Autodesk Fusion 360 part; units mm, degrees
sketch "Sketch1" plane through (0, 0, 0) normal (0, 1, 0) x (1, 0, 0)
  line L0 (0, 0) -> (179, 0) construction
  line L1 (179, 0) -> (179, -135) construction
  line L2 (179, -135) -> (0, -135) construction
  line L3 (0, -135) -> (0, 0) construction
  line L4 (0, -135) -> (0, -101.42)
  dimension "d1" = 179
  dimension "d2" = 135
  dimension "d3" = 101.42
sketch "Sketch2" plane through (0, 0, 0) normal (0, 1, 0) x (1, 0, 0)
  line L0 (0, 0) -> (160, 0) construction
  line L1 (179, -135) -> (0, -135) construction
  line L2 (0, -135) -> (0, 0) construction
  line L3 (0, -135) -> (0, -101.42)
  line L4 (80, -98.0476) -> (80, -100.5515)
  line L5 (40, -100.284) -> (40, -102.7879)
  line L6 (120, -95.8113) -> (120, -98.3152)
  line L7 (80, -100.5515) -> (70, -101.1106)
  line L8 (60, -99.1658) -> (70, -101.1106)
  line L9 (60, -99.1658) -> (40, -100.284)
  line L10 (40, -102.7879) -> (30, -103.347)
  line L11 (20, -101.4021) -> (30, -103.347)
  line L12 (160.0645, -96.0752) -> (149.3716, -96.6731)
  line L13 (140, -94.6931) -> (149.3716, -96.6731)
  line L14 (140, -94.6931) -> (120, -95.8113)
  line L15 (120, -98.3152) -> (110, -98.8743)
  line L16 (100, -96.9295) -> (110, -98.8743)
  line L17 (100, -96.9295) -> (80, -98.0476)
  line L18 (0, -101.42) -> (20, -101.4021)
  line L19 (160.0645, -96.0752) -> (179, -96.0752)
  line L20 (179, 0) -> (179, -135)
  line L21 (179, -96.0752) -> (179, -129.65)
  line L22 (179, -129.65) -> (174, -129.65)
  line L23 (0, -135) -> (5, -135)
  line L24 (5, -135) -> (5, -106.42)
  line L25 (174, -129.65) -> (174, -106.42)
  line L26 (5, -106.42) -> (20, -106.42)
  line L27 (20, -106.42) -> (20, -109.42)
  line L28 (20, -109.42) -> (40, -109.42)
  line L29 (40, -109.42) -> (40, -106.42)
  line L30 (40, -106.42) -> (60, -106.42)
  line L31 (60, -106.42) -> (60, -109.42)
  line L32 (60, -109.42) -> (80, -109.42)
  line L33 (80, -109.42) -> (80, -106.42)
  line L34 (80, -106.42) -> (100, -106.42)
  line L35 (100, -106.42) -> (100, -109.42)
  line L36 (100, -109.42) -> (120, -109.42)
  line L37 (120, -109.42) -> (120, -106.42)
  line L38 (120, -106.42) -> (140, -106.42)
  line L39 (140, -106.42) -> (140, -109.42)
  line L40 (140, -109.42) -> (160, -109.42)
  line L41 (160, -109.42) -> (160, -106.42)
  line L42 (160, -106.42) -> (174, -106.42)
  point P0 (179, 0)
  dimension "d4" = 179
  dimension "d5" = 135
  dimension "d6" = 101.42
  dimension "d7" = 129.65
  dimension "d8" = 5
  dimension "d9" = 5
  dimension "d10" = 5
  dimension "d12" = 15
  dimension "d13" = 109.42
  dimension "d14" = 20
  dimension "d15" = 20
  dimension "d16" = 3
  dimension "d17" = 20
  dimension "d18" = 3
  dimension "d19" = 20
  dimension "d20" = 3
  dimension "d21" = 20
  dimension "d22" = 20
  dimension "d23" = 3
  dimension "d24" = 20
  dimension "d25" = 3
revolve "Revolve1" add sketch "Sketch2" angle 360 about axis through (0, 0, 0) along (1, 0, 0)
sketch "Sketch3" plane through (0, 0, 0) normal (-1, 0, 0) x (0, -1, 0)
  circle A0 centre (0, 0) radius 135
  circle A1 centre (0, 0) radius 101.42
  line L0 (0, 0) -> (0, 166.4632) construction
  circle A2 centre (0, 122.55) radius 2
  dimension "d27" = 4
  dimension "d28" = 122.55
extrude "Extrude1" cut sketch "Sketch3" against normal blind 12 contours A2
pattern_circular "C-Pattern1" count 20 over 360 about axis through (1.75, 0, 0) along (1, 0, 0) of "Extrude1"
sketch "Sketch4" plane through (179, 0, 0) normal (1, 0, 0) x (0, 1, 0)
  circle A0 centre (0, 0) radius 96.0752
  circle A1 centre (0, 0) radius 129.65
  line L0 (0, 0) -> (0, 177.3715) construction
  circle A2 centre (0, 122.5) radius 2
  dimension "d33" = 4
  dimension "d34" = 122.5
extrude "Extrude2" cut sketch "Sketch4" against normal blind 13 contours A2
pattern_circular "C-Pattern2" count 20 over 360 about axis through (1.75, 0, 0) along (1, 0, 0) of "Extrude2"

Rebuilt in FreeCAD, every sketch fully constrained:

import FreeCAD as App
import Part
import Sketcher
Q = App.Units.Quantity

doc = App.newDocument("Part")
params = doc.addObject("Spreadsheet::Sheet", "Params")
for row, (alias, value) in enumerate([
    ("sketch1_width", "5 mm"),
    ("sketch1_width2", "15 mm"),
    ("sketch1_width3", "20 mm"),
    ("sketch1_height", "3 mm"),
    ("revolution_angle", "360 deg"),
    ("sketch2_diameter", "4 mm"),
    ("pocket1_length", "12 mm"),
    ("sketch3_diameter", "4 mm"),
    ("pocket2_length", "13 mm"),
], start=1):
    params.set(f"A{row}", alias)
    params.set(f"B{row}", "=" + value)
    params.setAlias(f"B{row}", alias)

body = doc.addObject("PartDesign::Body", "Body")

sketch1 = body.newObject("Sketcher::SketchObject", "Sketch")
sketch1.AttachmentSupport = (doc.getObject("XZ_Plane"), [""])
sketch1.MapMode = "FlatFace"
sketch1.addGeometry([
    Part.LineSegment(App.Vector(0, 101.4, 0), App.Vector(0, 135, 0)),
    Part.LineSegment(App.Vector(0, 135, 0), App.Vector(5, 135, 0)),
    Part.LineSegment(App.Vector(5, 135, 0), App.Vector(5, 106.4, 0)),
    Part.LineSegment(App.Vector(5, 106.4, 0), App.Vector(20, 106.4, 0)),
    Part.LineSegment(App.Vector(20, 106.4, 0), App.Vector(20, 109.4, 0)),
    Part.LineSegment(App.Vector(20, 109.4, 0), App.Vector(40, 109.4, 0)),
    Part.LineSegment(App.Vector(40, 109.4, 0), App.Vector(40, 106.4, 0)),
    Part.LineSegment(App.Vector(40, 106.4, 0), App.Vector(60, 106.4, 0)),
    Part.LineSegment(App.Vector(60, 106.4, 0), App.Vector(60, 109.4, 0)),
    Part.LineSegment(App.Vector(60, 109.4, 0), App.Vector(80, 109.4, 0)),
    Part.LineSegment(App.Vector(80, 109.4, 0), App.Vector(80, 106.4, 0)),
    Part.LineSegment(App.Vector(80, 106.4, 0), App.Vector(100, 106.4, 0)),
    Part.LineSegment(App.Vector(100, 106.4, 0), App.Vector(100, 109.4, 0)),
    Part.LineSegment(App.Vector(100, 109.4, 0), App.Vector(120, 109.4, 0)),
    Part.LineSegment(App.Vector(120, 109.4, 0), App.Vector(120, 106.4, 0)),
    Part.LineSegment(App.Vector(120, 106.4, 0), App.Vector(140, 106.4, 0)),
    Part.LineSegment(App.Vector(140, 106.4, 0), App.Vector(140, 109.4, 0)),
    Part.LineSegment(App.Vector(140, 109.4, 0), App.Vector(160, 109.4, 0)),
    Part.LineSegment(App.Vector(160, 109.4, 0), App.Vector(160, 106.4, 0)),
    Part.LineSegment(App.Vector(160, 106.4, 0), App.Vector(174, 106.4, 0)),
    Part.LineSegment(App.Vector(174, 106.4, 0), App.Vector(174, 129.7, 0)),
    Part.LineSegment(App.Vector(174, 129.7, 0), App.Vector(179, 129.7, 0)),
    Part.LineSegment(App.Vector(179, 129.7, 0), App.Vector(179, 96.1, 0)),
    Part.LineSegment(App.Vector(179, 96.1, 0), App.Vector(160.1, 96.1, 0)),
    Part.LineSegment(App.Vector(160.1, 96.1, 0), App.Vector(149.4, 96.7, 0)),
    Part.LineSegment(App.Vector(149.4, 96.7, 0), App.Vector(140, 94.7, 0)),
    Part.LineSegment(App.Vector(140, 94.7, 0), App.Vector(120, 95.8, 0)),
    Part.LineSegment(App.Vector(120, 95.8, 0), App.Vector(120, 98.3, 0)),
    Part.LineSegment(App.Vector(120, 98.3, 0), App.Vector(110, 98.9, 0)),
    Part.LineSegment(App.Vector(110, 98.9, 0), App.Vector(100, 96.9, 0)),
    Part.LineSegment(App.Vector(100, 96.9, 0), App.Vector(80, 98, 0)),
    Part.LineSegment(App.Vector(80, 98, 0), App.Vector(80, 100.6, 0)),
    Part.LineSegment(App.Vector(80, 100.6, 0), App.Vector(70, 101.1, 0)),
    Part.LineSegment(App.Vector(70, 101.1, 0), App.Vector(60, 99.2, 0)),
    Part.LineSegment(App.Vector(60, 99.2, 0), App.Vector(40, 100.3, 0)),
    Part.LineSegment(App.Vector(40, 100.3, 0), App.Vector(40, 102.8, 0)),
    Part.LineSegment(App.Vector(40, 102.8, 0), App.Vector(30, 103.3, 0)),
    Part.LineSegment(App.Vector(30, 103.3, 0), App.Vector(20, 101.4, 0)),
    Part.LineSegment(App.Vector(20, 101.4, 0), App.Vector(0, 101.4, 0)),
], False)
sketch1.addConstraint([
    Sketcher.Constraint("Coincident", 0, 2, 1, 1),
    Sketcher.Constraint("Coincident", 1, 2, 2, 1),
    Sketcher.Constraint("Coincident", 2, 2, 3, 1),
    Sketcher.Constraint("Coincident", 3, 2, 4, 1),
    Sketcher.Constraint("Coincident", 4, 2, 5, 1),
    Sketcher.Constraint("Coincident", 5, 2, 6, 1),
    Sketcher.Constraint("Coincident", 6, 2, 7, 1),
    Sketcher.Constraint("Coincident", 7, 2, 8, 1),
    Sketcher.Constraint("Coincident", 8, 2, 9, 1),
    Sketcher.Constraint("Coincident", 9, 2, 10, 1),
    Sketcher.Constraint("Coincident", 10, 2, 11, 1),
    Sketcher.Constraint("Coincident", 11, 2, 12, 1),
    Sketcher.Constraint("Coincident", 12, 2, 13, 1),
    Sketcher.Constraint("Coincident", 13, 2, 14, 1),
    Sketcher.Constraint("Coincident", 14, 2, 15, 1),
    Sketcher.Constraint("Coincident", 15, 2, 16, 1),
    Sketcher.Constraint("Coincident", 16, 2, 17, 1),
    Sketcher.Constraint("Coincident", 17, 2, 18, 1),
    Sketcher.Constraint("Coincident", 18, 2, 19, 1),
    Sketcher.Constraint("Coincident", 19, 2, 20, 1),
    Sketcher.Constraint("Coincident", 20, 2, 21, 1),
    Sketcher.Constraint("Coincident", 21, 2, 22, 1),
    Sketcher.Constraint("Coincident", 22, 2, 23, 1),
    Sketcher.Constraint("Coincident", 23, 2, 24, 1),
    Sketcher.Constraint("Coincident", 24, 2, 25, 1),
    Sketcher.Constraint("Coincident", 25, 2, 26, 1),
    Sketcher.Constraint("Coincident", 26, 2, 27, 1),
    Sketcher.Constraint("Coincident", 27, 2, 28, 1),
    Sketcher.Constraint("Coincident", 28, 2, 29, 1),
    Sketcher.Constraint("Coincident", 29, 2, 30, 1),
    Sketcher.Constraint("Coincident", 30, 2, 31, 1),
    Sketcher.Constraint("Coincident", 31, 2, 32, 1),
    Sketcher.Constraint("Coincident", 32, 2, 33, 1),
    Sketcher.Constraint("Coincident", 33, 2, 34, 1),
    Sketcher.Constraint("Coincident", 34, 2, 35, 1),
    Sketcher.Constraint("Coincident", 35, 2, 36, 1),
    Sketcher.Constraint("Coincident", 36, 2, 37, 1),
    Sketcher.Constraint("Coincident", 37, 2, 38, 1),
    Sketcher.Constraint("Coincident", 38, 2, 0, 1),
    Sketcher.Constraint("Vertical", 0),
    Sketcher.Constraint("Horizontal", 1),
    Sketcher.Constraint("Vertical", 2),
    Sketcher.Constraint("Horizontal", 3),
    Sketcher.Constraint("Vertical", 4),
    Sketcher.Constraint("Horizontal", 5),
    Sketcher.Constraint("Vertical", 6),
    Sketcher.Constraint("Horizontal", 7),
    Sketcher.Constraint("Vertical", 8),
    Sketcher.Constraint("Horizontal", 9),
    Sketcher.Constraint("Vertical", 10),
    Sketcher.Constraint("Horizontal", 11),
    Sketcher.Constraint("Vertical", 12),
    Sketcher.Constraint("Horizontal", 13),
    Sketcher.Constraint("Vertical", 14),
    Sketcher.Constraint("Horizontal", 15),
    Sketcher.Constraint("Vertical", 16),
    Sketcher.Constraint("Horizontal", 17),
    Sketcher.Constraint("Vertical", 18),
    Sketcher.Constraint("Horizontal", 19),
    Sketcher.Constraint("Vertical", 20),
    Sketcher.Constraint("Horizontal", 21),
    Sketcher.Constraint("Vertical", 22),
    Sketcher.Constraint("Horizontal", 23),
    Sketcher.Constraint("Vertical", 27),
    Sketcher.Constraint("Vertical", 31),
    Sketcher.Constraint("Vertical", 35),
    Sketcher.Constraint("PointOnObject", 0, 2, -2),
    Sketcher.Constraint("Parallel", 24, 26),
    Sketcher.Constraint("Parallel", 26, 28),
    Sketcher.Constraint("Parallel", 28, 30),
    Sketcher.Constraint("Parallel", 30, 32),
    Sketcher.Constraint("Parallel", 29, 33),
    Sketcher.Constraint("Parallel", 32, 34),
    Sketcher.Constraint("Parallel", 34, 36),
    Sketcher.Constraint("Parallel", 33, 37),
    Sketcher.Constraint("Horizontal", 3, 2, 6, 2),
    Sketcher.Constraint("Horizontal", 5, 2, 8, 2),
    Sketcher.Constraint("Horizontal", 7, 2, 10, 2),
    Sketcher.Constraint("Horizontal", 9, 2, 12, 2),
    Sketcher.Constraint("Horizontal", 11, 2, 14, 2),
    Sketcher.Constraint("Horizontal", 13, 2, 16, 2),
    Sketcher.Constraint("Horizontal", 15, 2, 18, 2),
    Sketcher.Constraint("Vertical", 16, 2, 25, 2),
    Sketcher.Constraint("Vertical", 14, 2, 26, 2),
    Sketcher.Constraint("Vertical", 12, 2, 29, 2),
    Sketcher.Constraint("Vertical", 10, 2, 30, 2),
    Sketcher.Constraint("Vertical", 8, 2, 33, 2),
    Sketcher.Constraint("Vertical", 6, 2, 34, 2),
    Sketcher.Constraint("Vertical", 4, 2, 37, 2),
    Sketcher.Constraint("Equal", 5, 7),
    Sketcher.Constraint("Equal", 7, 9),
    Sketcher.Constraint("Equal", 9, 11),
    Sketcher.Constraint("Equal", 11, 13),
    Sketcher.Constraint("Equal", 13, 15),
    Sketcher.Constraint("Equal", 15, 17),
    Sketcher.Constraint("Equal", 1, 21),
    Sketcher.Constraint("Equal", 27, 31),
    Sketcher.Constraint("Equal", 31, 35),
    Sketcher.Constraint("Equal", 28, 32),
    Sketcher.Constraint("Equal", 32, 36),
    Sketcher.Constraint("DistanceX", 1, 1, 1, 2, 5.0),
    Sketcher.Constraint("DistanceX", 3, 1, 3, 2, 15.0),
    Sketcher.Constraint("DistanceX", 5, 1, 5, 2, 20.0),
    Sketcher.Constraint("DistanceY", 4, 1, 4, 2, 3.0),
    Sketcher.Constraint("DistanceY", -1, 1, 0, 2, 135.0),
    Sketcher.Constraint("DistanceX", -1, 1, 21, 2, 179.0),
    Sketcher.Constraint("DistanceY", 38, 2, 2, 2, 5.0),
    Sketcher.Constraint("DistanceY", -1, 1, 4, 2, 109.42),
    Sketcher.Constraint("DistanceY", -1, 1, 20, 2, 129.65),
    Sketcher.Constraint("DistanceX", -1, 1, 28, 2, 110.0),
    Sketcher.Constraint("Angle", 24, Q("176.7996 deg")),
    Sketcher.Constraint("Angle", 25, Q("-168.0702 deg")),
    Sketcher.Constraint("DistanceY", 27, 1, 27, 2, 2.504),
    Sketcher.Constraint("DistanceY", 25, 2, 24, 2, 1.98),
    Sketcher.Constraint("DistanceX", 23, 2, 23, 1, 18.9355),
    Sketcher.Constraint("DistanceY", 22, 2, 22, 1, 33.5748),
    Sketcher.Constraint("DistanceY", -1, 1, 34, 2, 100.284),
])
sketch1.setExpression("Constraints[100]", "Params.sketch1_width")
sketch1.setExpression("Constraints[101]", "Params.sketch1_width2")
sketch1.setExpression("Constraints[102]", "Params.sketch1_width3")
sketch1.setExpression("Constraints[103]", "Params.sketch1_height")
revolution = body.newObject("PartDesign::Revolution", "Revolution")
revolution.Profile = sketch1
revolution.ReferenceAxis = (sketch1, ["H_Axis"])
revolution.setExpression("Angle", "Params.revolution_angle")

sketch2 = body.newObject("Sketcher::SketchObject", "Sketch001")
sketch2.AttachmentSupport = (doc.getObject("YZ_Plane"), [""])
sketch2.MapMode = "FlatFace"
sketch2.addGeometry(Part.Circle(App.Vector(0, 122.5, 0), App.Vector(0, 0, 1), 2), False)
sketch2.addConstraint([
    Sketcher.Constraint("PointOnObject", 0, 3, -2),
    Sketcher.Constraint("Diameter", 0, 4.0),
    Sketcher.Constraint("DistanceY", -1, 1, 0, 3, 122.55),
])
sketch2.setExpression("Constraints[1]", "Params.sketch2_diameter")
pocket1 = body.newObject("PartDesign::Pocket", "Pocket")
pocket1.Profile = sketch2
pocket1.setExpression("Length", "Params.pocket1_length")
pocket1.Reversed = True
doc.recompute()

polarpattern = body.newObject("PartDesign::PolarPattern", "PolarPattern")
polarpattern.Originals = [pocket1]
polarpattern.Axis = (doc.getObject("X_Axis"), [""])
polarpattern.Angle = 360
polarpattern.Occurrences = 20
body.Tip = polarpattern

sketch3 = body.newObject("Sketcher::SketchObject", "Sketch002")
sketch3.AttachmentSupport = (doc.getObject("YZ_Plane"), [""])
sketch3.MapMode = "FlatFace"
sketch3.AttachmentOffset = App.Placement(App.Vector(0, 0, 179), App.Rotation())
sketch3.addGeometry(Part.Circle(App.Vector(0, 122.5, 0), App.Vector(0, 0, 1), 2), False)
sketch3.addConstraint([
    Sketcher.Constraint("PointOnObject", 0, 3, -2),
    Sketcher.Constraint("Diameter", 0, 4.0),
    Sketcher.Constraint("DistanceY", -1, 1, 0, 3, 122.5),
])
sketch3.setExpression("Constraints[1]", "Params.sketch3_diameter")
pocket2 = body.newObject("PartDesign::Pocket", "Pocket001")
pocket2.Profile = sketch3
pocket2.setExpression("Length", "Params.pocket2_length")
doc.recompute()

polarpattern2 = body.newObject("PartDesign::PolarPattern", "PolarPattern001")
polarpattern2.Originals = [pocket2]
polarpattern2.Axis = (doc.getObject("X_Axis"), [""])
polarpattern2.Angle = 360
polarpattern2.Occurrences = 20
body.Tip = polarpattern2

doc.recompute()
